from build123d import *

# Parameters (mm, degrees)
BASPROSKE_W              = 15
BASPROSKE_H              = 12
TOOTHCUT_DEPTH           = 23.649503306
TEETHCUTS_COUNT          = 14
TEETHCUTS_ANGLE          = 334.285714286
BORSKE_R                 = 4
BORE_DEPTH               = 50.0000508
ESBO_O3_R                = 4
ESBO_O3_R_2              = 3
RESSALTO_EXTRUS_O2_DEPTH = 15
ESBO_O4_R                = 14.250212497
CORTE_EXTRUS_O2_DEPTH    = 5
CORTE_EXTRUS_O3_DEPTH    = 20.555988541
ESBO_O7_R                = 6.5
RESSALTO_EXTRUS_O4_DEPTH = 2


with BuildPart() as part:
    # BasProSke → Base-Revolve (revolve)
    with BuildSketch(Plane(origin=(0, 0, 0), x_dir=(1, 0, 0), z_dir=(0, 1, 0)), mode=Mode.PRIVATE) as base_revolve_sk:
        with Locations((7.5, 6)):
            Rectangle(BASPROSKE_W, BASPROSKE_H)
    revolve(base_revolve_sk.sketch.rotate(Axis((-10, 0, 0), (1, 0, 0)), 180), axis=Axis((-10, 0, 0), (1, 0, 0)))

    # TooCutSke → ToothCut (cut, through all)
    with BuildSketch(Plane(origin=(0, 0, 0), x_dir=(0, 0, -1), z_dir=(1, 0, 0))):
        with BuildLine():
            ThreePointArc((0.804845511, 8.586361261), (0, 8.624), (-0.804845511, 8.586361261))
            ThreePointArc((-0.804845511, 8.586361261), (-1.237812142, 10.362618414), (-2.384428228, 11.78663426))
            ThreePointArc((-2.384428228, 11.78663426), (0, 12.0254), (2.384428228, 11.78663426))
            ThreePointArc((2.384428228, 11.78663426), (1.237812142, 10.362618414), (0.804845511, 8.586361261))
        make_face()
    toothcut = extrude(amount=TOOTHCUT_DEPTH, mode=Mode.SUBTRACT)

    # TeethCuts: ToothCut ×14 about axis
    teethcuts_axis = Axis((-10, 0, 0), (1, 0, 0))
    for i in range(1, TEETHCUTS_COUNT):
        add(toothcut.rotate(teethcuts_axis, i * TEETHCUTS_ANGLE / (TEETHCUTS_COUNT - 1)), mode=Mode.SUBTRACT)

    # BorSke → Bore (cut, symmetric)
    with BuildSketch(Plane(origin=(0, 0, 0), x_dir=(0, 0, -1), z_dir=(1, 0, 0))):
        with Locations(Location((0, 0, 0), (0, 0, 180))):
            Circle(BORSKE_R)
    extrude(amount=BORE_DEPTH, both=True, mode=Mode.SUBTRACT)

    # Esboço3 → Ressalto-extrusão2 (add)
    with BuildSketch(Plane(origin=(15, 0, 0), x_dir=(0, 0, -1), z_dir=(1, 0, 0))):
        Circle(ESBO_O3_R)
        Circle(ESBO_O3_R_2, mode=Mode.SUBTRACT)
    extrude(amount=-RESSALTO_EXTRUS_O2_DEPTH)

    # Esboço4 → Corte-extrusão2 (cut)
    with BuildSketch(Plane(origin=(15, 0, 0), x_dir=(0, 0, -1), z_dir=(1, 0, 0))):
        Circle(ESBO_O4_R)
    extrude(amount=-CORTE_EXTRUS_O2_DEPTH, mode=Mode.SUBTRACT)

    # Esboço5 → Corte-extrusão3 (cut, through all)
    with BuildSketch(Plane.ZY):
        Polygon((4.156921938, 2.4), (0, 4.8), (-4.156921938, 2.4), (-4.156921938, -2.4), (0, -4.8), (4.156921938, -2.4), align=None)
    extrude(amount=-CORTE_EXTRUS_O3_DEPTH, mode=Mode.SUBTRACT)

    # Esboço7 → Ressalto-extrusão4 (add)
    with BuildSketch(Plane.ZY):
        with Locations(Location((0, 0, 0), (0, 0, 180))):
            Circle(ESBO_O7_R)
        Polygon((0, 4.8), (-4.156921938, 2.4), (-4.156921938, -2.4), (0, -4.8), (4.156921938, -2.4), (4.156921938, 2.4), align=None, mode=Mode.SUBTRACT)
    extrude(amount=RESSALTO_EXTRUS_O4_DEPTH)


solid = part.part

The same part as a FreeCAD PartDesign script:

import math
import FreeCAD as App
import Part
import Sketcher

V = App.Vector
Q = App.Units.Quantity


def add_polygon(sketch, points):
    """Adds a closed chain of lines whose ends are joined by coincident constraints."""
    first, n = sketch.GeometryCount, len(points)
    for a, b in zip(points, points[1:] + points[:1]):
        sketch.addGeometry(Part.LineSegment(App.Vector(*a, 0), App.Vector(*b, 0)), False)
    for i in range(n):
        sketch.addConstraint(Sketcher.Constraint("Coincident", first + i, 2, first + (i + 1) % n, 1))

doc = App.newDocument("Part")
params = doc.addObject("Spreadsheet::Sheet", "Params")
for row, (alias, value) in enumerate([
    ("sketch1_width", "15 mm"),
    ("sketch1_height", "12 mm"),
    ("revolution_angle", "360 deg"),
    ("sketch2_radius", "4.2 mm"),
    ("sketch3_diameter", "8 mm"),
    ("pocket2_length", "100.000102 mm"),
    ("sketch4_diameter", "8 mm"),
    ("sketch4_diameter2", "6 mm"),
    ("pad1_length", "15 mm"),
    ("pocket3_length", "5 mm"),
    ("sketch6_width", "4.8 mm"),
    ("sketch6_length", "4.8 mm"),
    ("sketch7_diameter", "13 mm"),
    ("sketch7_width", "4.8 mm"),
    ("sketch7_length", "4.8 mm"),
    ("pad2_length", "2 mm"),
], start=1):
    params.set(f"A{row}", alias)
    params.set(f"B{row}", "=" + value)
    params.setAlias(f"B{row}", alias)

body = doc.addObject("PartDesign::Body", "Body")

# Sketch on XZ plane
sketch1 = body.newObject("Sketcher::SketchObject", "Sketch")
sketch1.AttachmentSupport = (doc.getObject("XZ_Plane"), [""])
sketch1.MapMode = "FlatFace"
add_polygon(sketch1, [(0, -12), (0, 0), (15, 0), (15, -12)])  # lines 0-3
sketch1.addConstraint([
    Sketcher.Constraint("Vertical", 0),
    Sketcher.Constraint("Horizontal", 1),
    Sketcher.Constraint("Vertical", 2),
    Sketcher.Constraint("Horizontal", 3),
    Sketcher.Constraint("Coincident", 0, 2, -1, 1),
    Sketcher.Constraint("DistanceX", 1, 1, 1, 2, 15.0),
    Sketcher.Constraint("DistanceY", 0, 1, 0, 2, 12.0),
])
sketch1.setExpression("Constraints[9]", "Params.sketch1_width")
sketch1.setExpression("Constraints[10]", "Params.sketch1_height")
revolution = body.newObject("PartDesign::Revolution", "Revolution")
revolution.Profile = sketch1
revolution.ReferenceAxis = (sketch1, ["H_Axis"])
revolution.setExpression("Angle", "Params.revolution_angle")

# Sketch on YZ plane
sketch2 = body.newObject("Sketcher::SketchObject", "Sketch001")
sketch2.AttachmentSupport = (doc.getObject("YZ_Plane"), [""])
sketch2.MapMode = "FlatFace"
sketch2.addGeometry([
    Part.ArcOfCircle(Part.Circle(V(0, 0, 0), V(0, 0, 1), 8.6), math.radians(-5.35), math.radians(5.35)),
    Part.ArcOfCircle(Part.Circle(V(8.5, -5, 0), V(0, 0, 1), 4.2), math.radians(39), math.radians(89)),
    Part.ArcOfCircle(Part.Circle(V(0, 0, 0), V(0, 0, 1), 12), math.radians(-11), math.radians(11)),
    Part.ArcOfCircle(Part.Circle(V(8.5, 5, 0), V(0, 0, 1), 4.2), math.radians(-89), math.radians(-39)),
], False)
sketch2.addConstraint([
    Sketcher.Constraint("Coincident", 0, 1, 1, 2),
    Sketcher.Constraint("Coincident", 1, 1, 2, 1),
    Sketcher.Constraint("Coincident", 2, 2, 3, 2),
    Sketcher.Constraint("Coincident", 3, 1, 0, 2),
    Sketcher.Constraint("Coincident", 0, 3, -1, 1),
    Sketcher.Constraint("Coincident", 2, 3, -1, 1),
    Sketcher.Constraint("Equal", 1, 3),
    Sketcher.Constraint("Symmetric", 1, 3, 3, 3, -1),
    Sketcher.Constraint("Radius", 1, 4.2),
    Sketcher.Constraint("Radius", 0, 8.624),
    Sketcher.Constraint("Radius", 2, 12.0254),
    Sketcher.Constraint("DistanceY", 1, 3, -1, 1, 5.004032),
    Sketcher.Constraint("DistanceY", 1, 1, -1, 1, 2.384428),
])
sketch2.setExpression("Constraints[8]", "Params.sketch2_radius")
pocket1 = body.newObject("PartDesign::Pocket", "Pocket")
pocket1.Profile = sketch2
pocket1.Type = "ThroughAll"
pocket1.Reversed = True
doc.recompute()

polarpattern = body.newObject("PartDesign::PolarPattern", "PolarPattern")
polarpattern.Originals = [pocket1]
polarpattern.Axis = (doc.getObject("X_Axis"), [""])
polarpattern.Angle = 360
polarpattern.Occurrences = 14
body.Tip = polarpattern

# Sketch on YZ plane
sketch3 = body.newObject("Sketcher::SketchObject", "Sketch002")
sketch3.AttachmentSupport = (doc.getObject("YZ_Plane"), [""])
sketch3.MapMode = "FlatFace"
sketch3.addGeometry(Part.Circle(V(0, 0, 0), V(0, 0, 1), 4), False)
sketch3.addConstraint([
    Sketcher.Constraint("Coincident", 0, 3, -1, 1),
    Sketcher.Constraint("Diameter", 0, 8.0),
])
sketch3.setExpression("Constraints[1]", "Params.sketch3_diameter")
pocket2 = body.newObject("PartDesign::Pocket", "Pocket001")
pocket2.Profile = sketch3
pocket2.setExpression("Length", "Params.pocket2_length")
pocket2.Midplane = True

# Sketch on YZ plane
sketch4 = body.newObject("Sketcher::SketchObject", "Sketch003")
sketch4.AttachmentSupport = (doc.getObject("YZ_Plane"), [""])
sketch4.MapMode = "FlatFace"
sketch4.AttachmentOffset = App.Placement(V(0, 0, 15), App.Rotation())
sketch4.addGeometry([
    Part.Circle(V(0, 0, 0), V(0, 0, 1), 4),
    Part.Circle(V(0, 0, 0), V(0, 0, 1), 3),
], False)
sketch4.addConstraint([
    Sketcher.Constraint("Coincident", 0, 3, -1, 1),
    Sketcher.Constraint("Coincident", 1, 3, -1, 1),
    Sketcher.Constraint("Diameter", 0, 8.0),
    Sketcher.Constraint("Diameter", 1, 6.0),
])
sketch4.setExpression("Constraints[2]", "Params.sketch4_diameter")
sketch4.setExpression("Constraints[3]", "Params.sketch4_diameter2")
pad1 = body.newObject("PartDesign::Pad", "Pad")
pad1.Profile = sketch4
pad1.setExpression("Length", "Params.pad1_length")
pad1.Reversed = True

# Sketch on YZ plane
sketch5 = body.newObject("Sketcher::SketchObject", "Sketch004")
sketch5.AttachmentSupport = (doc.getObject("YZ_Plane"), [""])
sketch5.MapMode = "FlatFace"
sketch5.AttachmentOffset = App.Placement(V(0, 0, 15), App.Rotation())
sketch5.addGeometry(Part.Circle(V(0, 0, 0), V(0, 0, 1), 14), False)
sketch5.addConstraint([
    Sketcher.Constraint("Coincident", 0, 3, -1, 1),
    Sketcher.Constraint("Diameter", 0, 28.500425),
])
pocket3 = body.newObject("PartDesign::Pocket", "Pocket002")
pocket3.Profile = sketch5
pocket3.setExpression("Length", "Params.pocket3_length")

# Sketch on YZ plane
sketch6 = body.newObject("Sketcher::SketchObject", "Sketch005")
sketch6.AttachmentSupport = (doc.getObject("YZ_Plane"), [""])
sketch6.MapMode = "FlatFace"
add_polygon(sketch6, [(2.4, 4.2), (4.8, 0), (2.4, -4.2), (-2.4, -4.2), (-4.8, 0), (-2.4, 4.2)])  # lines 0-5
sketch6.addConstraint([
    Sketcher.Constraint("Horizontal", 2),
    Sketcher.Constraint("Horizontal", 5),
    Sketcher.Constraint("Symmetric", 0, 2, 3, 2, -1, 1),
    Sketcher.Constraint("Symmetric", 1, 2, 4, 2, -1, 1),
    Sketcher.Constraint("PointOnObject", 0, 2, -1),
    Sketcher.Constraint("Parallel", 0, 3),
    Sketcher.Constraint("Vertical", 2, 2, 4, 2),
    Sketcher.Constraint("Angle", 0, Q("-60 deg")),
    Sketcher.Constraint("DistanceX", 2, 2, 2, 1, 4.8),
    Sketcher.Constraint("Distance", 0, 4.8),
])
sketch6.setExpression("Constraints[14]", "Params.sketch6_width")
sketch6.setExpression("Constraints[15]", "Params.sketch6_length")
pocket4 = body.newObject("PartDesign::Pocket", "Pocket003")
pocket4.Profile = sketch6
pocket4.Type = "ThroughAll"
pocket4.Reversed = True

# Sketch on YZ plane
sketch7 = body.newObject("Sketcher::SketchObject", "Sketch006")
sketch7.AttachmentSupport = (doc.getObject("YZ_Plane"), [""])
sketch7.MapMode = "FlatFace"
sketch7.addGeometry(Part.Circle(V(0, 0, 0), V(0, 0, 1), 6.5), False)  # 0
add_polygon(sketch7, [(2.4, -4.2), (4.8, 0), (2.4, 4.2), (-2.4, 4.2), (-4.8, 0), (-2.4, -4.2)])  # lines 1-6
sketch7.addConstraint([
    Sketcher.Constraint("Horizontal", 3),
    Sketcher.Constraint("Horizontal", 6),
    Sketcher.Constraint("Coincident", 0, 3, -1, 1),
    Sketcher.Constraint("Symmetric", 1, 2, 4, 2, -1, 1),
    Sketcher.Constraint("Symmetric", 2, 2, 5, 2, -1, 1),
    Sketcher.Constraint("PointOnObject", 1, 2, -1),
    Sketcher.Constraint("Parallel", 1, 4),
    Sketcher.Constraint("Vertical", 3, 2, 5, 2),
    Sketcher.Constraint("Diameter", 0, 13.0),
    Sketcher.Constraint("Angle", 1, Q("60 deg")),
    Sketcher.Constraint("DistanceX", 3, 2, 3, 1, 4.8),
    Sketcher.Constraint("Distance", 1, 4.8),
])
sketch7.setExpression("Constraints[14]", "Params.sketch7_diameter")
sketch7.setExpression("Constraints[16]", "Params.sketch7_width")
sketch7.setExpression("Constraints[17]", "Params.sketch7_length")
pad2 = body.newObject("PartDesign::Pad", "Pad001")
pad2.Profile = sketch7
pad2.setExpression("Length", "Params.pad2_length")
pad2.Reversed = True

doc.recompute()
